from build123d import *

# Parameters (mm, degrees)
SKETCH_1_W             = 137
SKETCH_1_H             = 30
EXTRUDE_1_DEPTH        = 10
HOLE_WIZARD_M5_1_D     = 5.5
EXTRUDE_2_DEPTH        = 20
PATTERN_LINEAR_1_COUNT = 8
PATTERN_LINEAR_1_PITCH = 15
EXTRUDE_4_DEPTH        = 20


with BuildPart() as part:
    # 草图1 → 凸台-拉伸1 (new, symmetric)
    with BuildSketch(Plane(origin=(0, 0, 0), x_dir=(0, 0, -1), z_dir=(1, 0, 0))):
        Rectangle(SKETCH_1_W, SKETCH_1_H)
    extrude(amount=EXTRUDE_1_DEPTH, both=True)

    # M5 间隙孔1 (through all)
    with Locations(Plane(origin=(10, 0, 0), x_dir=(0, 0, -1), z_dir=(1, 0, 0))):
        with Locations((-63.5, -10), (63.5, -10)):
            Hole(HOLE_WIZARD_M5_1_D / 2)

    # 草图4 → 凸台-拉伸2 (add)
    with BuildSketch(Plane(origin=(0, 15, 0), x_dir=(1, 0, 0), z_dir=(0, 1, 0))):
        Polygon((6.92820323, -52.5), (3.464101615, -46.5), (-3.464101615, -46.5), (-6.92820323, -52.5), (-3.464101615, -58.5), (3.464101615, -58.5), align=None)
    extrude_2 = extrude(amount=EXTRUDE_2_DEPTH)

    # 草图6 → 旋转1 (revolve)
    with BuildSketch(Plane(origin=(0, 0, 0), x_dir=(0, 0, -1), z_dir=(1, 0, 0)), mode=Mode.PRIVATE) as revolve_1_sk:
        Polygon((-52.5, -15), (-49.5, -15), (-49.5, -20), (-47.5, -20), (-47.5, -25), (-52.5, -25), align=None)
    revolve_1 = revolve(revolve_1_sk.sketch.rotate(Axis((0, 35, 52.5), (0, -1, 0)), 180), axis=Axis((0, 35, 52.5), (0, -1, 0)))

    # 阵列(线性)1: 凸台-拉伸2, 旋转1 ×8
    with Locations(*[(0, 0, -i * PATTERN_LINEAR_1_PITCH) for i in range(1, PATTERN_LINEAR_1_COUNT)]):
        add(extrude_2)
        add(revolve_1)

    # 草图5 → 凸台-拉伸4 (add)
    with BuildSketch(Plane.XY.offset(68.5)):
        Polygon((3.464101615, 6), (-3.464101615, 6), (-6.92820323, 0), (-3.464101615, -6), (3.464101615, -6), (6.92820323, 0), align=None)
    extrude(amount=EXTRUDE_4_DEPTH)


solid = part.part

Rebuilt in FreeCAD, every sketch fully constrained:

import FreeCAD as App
import Part
import Sketcher

V = App.Vector
Q = App.Units.Quantity


def add_polygon(sketch, points):
    """Adds a closed chain of lines whose ends are joined by coincident constraints."""
    first, n = sketch.GeometryCount, len(points)
    for a, b in zip(points, points[1:] + points[:1]):
        sketch.addGeometry(Part.LineSegment(App.Vector(*a, 0), App.Vector(*b, 0)), False)
    for i in range(n):
        sketch.addConstraint(Sketcher.Constraint("Coincident", first + i, 2, first + (i + 1) % n, 1))

doc = App.newDocument("Part")
body = doc.addObject("PartDesign::Body", "Body")

sketch1 = body.newObject("Sketcher::SketchObject", "Sketch")
sketch1.AttachmentSupport = (doc.getObject("YZ_Plane"), [""])
sketch1.MapMode = "FlatFace"
add_polygon(sketch1, [(15, 68), (-15, 68), (-15, -68), (15, -68)])
sketch1.addConstraint([
    Sketcher.Constraint("Horizontal", 0),
    Sketcher.Constraint("Vertical", 1),
    Sketcher.Constraint("Horizontal", 2),
    Sketcher.Constraint("Vertical", 3),
    Sketcher.Constraint("Symmetric", 0, 2, 2, 2, -1, 1),
    Sketcher.Constraint("DistanceX", 0, 2, 0, 1, 30.0),
    Sketcher.Constraint("DistanceY", 1, 2, 1, 1, 137.0),
])
pad1 = body.newObject("PartDesign::Pad", "Pad")
pad1.Profile = sketch1
pad1.Length = 20
pad1.Midplane = True

sketch2 = body.newObject("Sketcher::SketchObject", "Sketch001")
sketch2.AttachmentSupport = (doc.getObject("YZ_Plane"), [""])
sketch2.MapMode = "FlatFace"
sketch2.AttachmentOffset = App.Placement(V(0, 0, 10), App.Rotation())
sketch2.addGeometry([
    Part.Circle(V(-10, 63.5, 0), V(0, 0, 1), 2.8),
    Part.Circle(V(-10, -63.5, 0), V(0, 0, 1), 2.8),
], False)
sketch2.addConstraint([
    Sketcher.Constraint("Equal", 0, 1),
    Sketcher.Constraint("Symmetric", 0, 3, 1, 3, -1),
    Sketcher.Constraint("Diameter", 0, 5.5),
    Sketcher.Constraint("DistanceX", 0, 3, -1, 1, 10.0),
    Sketcher.Constraint("DistanceY", 1, 3, 0, 3, 127.0),
])
doc.recompute()
hole = body.newObject("PartDesign::Hole", "Hole")
hole.Profile = sketch2
hole.ThreadType = "None"
hole.Diameter = 5.5
hole.DepthType = "ThroughAll"

sketch3 = body.newObject("Sketcher::SketchObject", "Sketch002")
sketch3.AttachmentSupport = (doc.getObject("XZ_Plane"), [""])
sketch3.MapMode = "FlatFace"
sketch3.AttachmentOffset = App.Placement(V(0, 0, -15), App.Rotation())
add_polygon(sketch3, [(7, 52), (3, 46), (-3, 46), (-7, 52), (-3, 58), (3, 58)])
sketch3.addConstraint([
    Sketcher.Constraint("Horizontal", 1),
    Sketcher.Constraint("Horizontal", 4),
    Sketcher.Constraint("Symmetric", 2, 2, 5, 2, -2),
    Sketcher.Constraint("Parallel", 0, 3),
    Sketcher.Constraint("Parallel", 2, 5),
    Sketcher.Constraint("Vertical", 1, 2, 3, 2),
    Sketcher.Constraint("Vertical", 0, 2, 4, 2),
    Sketcher.Constraint("Angle", 0, Q("-120 deg")),
    Sketcher.Constraint("DistanceY", 1, 2, 2, 2, 6.0),
    Sketcher.Constraint("DistanceY", -1, 1, 0, 2, 46.5),
    Sketcher.Constraint("DistanceX", -1, 1, 0, 2, 3.464102),
])
pad2 = body.newObject("PartDesign::Pad", "Pad001")
pad2.Profile = sketch3
pad2.Length = 20
pad2.Reversed = True

sketch4 = body.newObject("Sketcher::SketchObject", "Sketch003")
sketch4.AttachmentSupport = (doc.getObject("YZ_Plane"), [""])
sketch4.MapMode = "FlatFace"
add_polygon(sketch4, [(-15, 49.5), (-15, 52.5), (-25, 52.5), (-25, 47.5), (-20, 47.5), (-20, 49.5)])
sketch4.addGeometry(Part.LineSegment(V(-15, 52.5, 0), V(-25, 52.5, 0)), True)
sketch4.addConstraint([
    Sketcher.Constraint("Vertical", 0),
    Sketcher.Constraint("Horizontal", 1),
    Sketcher.Constraint("Vertical", 2),
    Sketcher.Constraint("Horizontal", 3),
    Sketcher.Constraint("Vertical", 4),
    Sketcher.Constraint("Horizontal", 5),
    Sketcher.Constraint("Horizontal", 6),
    Sketcher.Constraint("Coincident", 6, 1, 0, 2),
    Sketcher.Constraint("Vertical", 2, 2, 6, 2),
    Sketcher.Constraint("Equal", 3, 5),
    Sketcher.Constraint("Equal", 5, 2),
    Sketcher.Constraint("DistanceX", 1, 2, 1, 1, 10.0),
    Sketcher.Constraint("DistanceY", 0, 1, 0, 2, 3.0),
    Sketcher.Constraint("DistanceX", 0, 2, -1, 1, 15.0),
    Sketcher.Constraint("DistanceY", -1, 1, 0, 2, 52.5),
])
revolution = body.newObject("PartDesign::Revolution", "Revolution")
revolution.Profile = sketch4
revolution.ReferenceAxis = (sketch4, ["Axis0"])
revolution.Angle = 360
doc.recompute()

linearpattern = body.newObject("PartDesign::LinearPattern", "LinearPattern")
linearpattern.Originals = [pad2, revolution]
linearpattern.Direction = (doc.getObject("Z_Axis"), [""])
linearpattern.Mode = "offset"
linearpattern.Offset = 15
linearpattern.Occurrences = 8
linearpattern.Reversed = True
body.Tip = linearpattern

sketch5 = body.newObject("Sketcher::SketchObject", "Sketch004")
sketch5.AttachmentSupport = (doc.getObject("XY_Plane"), [""])
sketch5.MapMode = "FlatFace"
sketch5.AttachmentOffset = App.Placement(V(0, 0, 68.5), App.Rotation())
add_polygon(sketch5, [(3, 6), (-3, 6), (-7, 0), (-3, -6), (3, -6), (7, 0)])
sketch5.addConstraint([
    Sketcher.Constraint("Horizontal", 0),
    Sketcher.Constraint("Horizontal", 3),
    Sketcher.Constraint("Symmetric", 0, 2, 3, 2, -1, 1),
    Sketcher.Constraint("Symmetric", 1, 2, 4, 2, -1, 1),
    Sketcher.Constraint("PointOnObject", 1, 2, -1),
    Sketcher.Constraint("Parallel", 2, 5),
    Sketcher.Constraint("Vertical", 0, 2, 2, 2),
    Sketcher.Constraint("Angle", 1, Q("-120 deg")),
    Sketcher.Constraint("DistanceY", -1, 1, 0, 2, 6.0),
    Sketcher.Constraint("DistanceX", 0, 2, -1, 1, 3.464102),
])
pad3 = body.newObject("PartDesign::Pad", "Pad002")
pad3.Profile = sketch5
pad3.Length = 20

doc.recompute()
